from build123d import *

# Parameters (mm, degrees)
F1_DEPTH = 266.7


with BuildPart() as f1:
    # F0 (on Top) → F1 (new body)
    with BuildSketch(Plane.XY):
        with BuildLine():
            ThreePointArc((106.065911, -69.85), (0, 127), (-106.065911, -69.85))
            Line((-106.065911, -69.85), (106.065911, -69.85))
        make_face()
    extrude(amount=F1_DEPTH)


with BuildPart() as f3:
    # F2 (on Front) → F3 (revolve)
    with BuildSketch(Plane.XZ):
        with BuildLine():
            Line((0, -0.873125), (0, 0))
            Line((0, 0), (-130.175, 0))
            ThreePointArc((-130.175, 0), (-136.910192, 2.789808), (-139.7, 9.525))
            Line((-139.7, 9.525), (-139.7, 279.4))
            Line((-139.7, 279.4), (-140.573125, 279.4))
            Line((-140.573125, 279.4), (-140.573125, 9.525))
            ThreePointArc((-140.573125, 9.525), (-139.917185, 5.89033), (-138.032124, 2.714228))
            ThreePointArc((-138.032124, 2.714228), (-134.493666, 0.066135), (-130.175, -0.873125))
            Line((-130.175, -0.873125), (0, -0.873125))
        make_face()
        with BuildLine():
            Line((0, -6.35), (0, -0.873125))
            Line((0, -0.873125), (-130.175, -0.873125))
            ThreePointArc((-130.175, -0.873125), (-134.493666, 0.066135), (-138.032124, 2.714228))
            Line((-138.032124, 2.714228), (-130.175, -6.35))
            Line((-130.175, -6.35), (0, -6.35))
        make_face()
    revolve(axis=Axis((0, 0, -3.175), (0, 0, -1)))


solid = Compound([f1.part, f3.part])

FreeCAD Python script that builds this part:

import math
import FreeCAD as App
import Part
import Sketcher

V = App.Vector
Q = App.Units.Quantity

doc = App.newDocument("Part")
body = doc.addObject("PartDesign::Body", "Body")

sketch1 = body.newObject("Sketcher::SketchObject", "Sketch")
sketch1.AttachmentSupport = (doc.getObject("XY_Plane"), [""])
sketch1.MapMode = "FlatFace"
sketch1.addGeometry([
    Part.ArcOfCircle(Part.Circle(V(0, 0, 0), V(0, 0, 1), 127), math.radians(-33.367013), math.radians(213.367013)),
    Part.LineSegment(V(-106.065911, -69.85, 0), V(106.065911, -69.85, 0)),
], False)
sketch1.addConstraint([
    Sketcher.Constraint("Coincident", 0, 1, 1, 2),
    Sketcher.Constraint("Coincident", 1, 1, 0, 2),
    Sketcher.Constraint("Horizontal", 1),
    Sketcher.Constraint("Coincident", 0, 3, -1, 1),
    Sketcher.Constraint("Radius", 0, Q("5 in")),
    Sketcher.Constraint("DistanceY", 0, 1, -1, 1, Q("2.75 in")),
])
pad1 = body.newObject("PartDesign::Pad", "Pad")
pad1.Profile = sketch1
pad1.Length = Q("10.5 in")
body2 = doc.addObject("PartDesign::Body", "Body001")

sketch2 = body2.newObject("Sketcher::SketchObject", "Sketch001")
sketch2.AttachmentSupport = (doc.getObject("XZ_Plane001"), [""])
sketch2.MapMode = "FlatFace"
sketch2.addGeometry([
    Part.LineSegment(V(0, 0, 0), V(-130.175, 0, 0)),
    Part.ArcOfCircle(Part.Circle(V(-130.175, 9.525, 0), V(0, 0, 1), 9.525), math.radians(-179.999998), math.radians(-90.000002)),
    Part.LineSegment(V(-139.7, 9.525, 0), V(-139.7, 279.4, 0)),
    Part.LineSegment(V(-139.7, 279.4, 0), V(-140.573125, 279.4, 0)),
    Part.LineSegment(V(-140.573125, 279.4, 0), V(-140.573125, 9.525, 0)),
    Part.ArcOfCircle(Part.Circle(V(-130.17499, 9.525003, 0), V(0, 0, 1), 10.398135), math.radians(-179.999983), math.radians(-139.080374)),
    Part.LineSegment(V(-138.032124, 2.714228, 0), V(-130.175, -6.35, 0)),
    Part.LineSegment(V(-130.175, -6.35, 0), V(0, -6.35, 0)),
    Part.LineSegment(V(0, -6.35, 0), V(0, 0, 0)),
], False)
sketch2.addConstraint([
    Sketcher.Constraint("Tangent", 0, 2, 1, 2),
    Sketcher.Constraint("Tangent", 1, 1, 2, 1),
    Sketcher.Constraint("Coincident", 2, 2, 3, 1),
    Sketcher.Constraint("Coincident", 3, 2, 4, 1),
    Sketcher.Constraint("Tangent", 4, 2, 5, 1),
    Sketcher.Constraint("Tangent", 5, 2, 6, 1),
    Sketcher.Constraint("Coincident", 6, 2, 7, 1),
    Sketcher.Constraint("Coincident", 7, 2, 8, 1),
    Sketcher.Constraint("Coincident", 8, 2, 0, 1),
    Sketcher.Constraint("Horizontal", 0),
    Sketcher.Constraint("Vertical", 2),
    Sketcher.Constraint("Horizontal", 3),
    Sketcher.Constraint("Vertical", 4),
    Sketcher.Constraint("Horizontal", 7),
    Sketcher.Constraint("Vertical", 8),
    Sketcher.Constraint("Coincident", 8, 2, -1, 1),
    Sketcher.Constraint("Coincident", 5, 3, 1, 3),
    Sketcher.Constraint("Vertical", 0, 2, 6, 2),
    Sketcher.Constraint("DistanceY", -1, 1, 2, 2, Q("11 in")),
    Sketcher.Constraint("Radius", 1, Q("0.375 in")),
    Sketcher.Constraint("DistanceY", 8, 1, 8, 2, Q("0.25 in")),
    Sketcher.Constraint("DistanceX", 1, 1, -1, 1, Q("5.5 in")),
    Sketcher.Constraint("Radius", 5, 10.398135),
])
revolution = body2.newObject("PartDesign::Revolution", "Revolution")
revolution.Profile = sketch2
revolution.ReferenceAxis = (sketch2, ["V_Axis"])
revolution.Angle = 360

doc.recompute()
